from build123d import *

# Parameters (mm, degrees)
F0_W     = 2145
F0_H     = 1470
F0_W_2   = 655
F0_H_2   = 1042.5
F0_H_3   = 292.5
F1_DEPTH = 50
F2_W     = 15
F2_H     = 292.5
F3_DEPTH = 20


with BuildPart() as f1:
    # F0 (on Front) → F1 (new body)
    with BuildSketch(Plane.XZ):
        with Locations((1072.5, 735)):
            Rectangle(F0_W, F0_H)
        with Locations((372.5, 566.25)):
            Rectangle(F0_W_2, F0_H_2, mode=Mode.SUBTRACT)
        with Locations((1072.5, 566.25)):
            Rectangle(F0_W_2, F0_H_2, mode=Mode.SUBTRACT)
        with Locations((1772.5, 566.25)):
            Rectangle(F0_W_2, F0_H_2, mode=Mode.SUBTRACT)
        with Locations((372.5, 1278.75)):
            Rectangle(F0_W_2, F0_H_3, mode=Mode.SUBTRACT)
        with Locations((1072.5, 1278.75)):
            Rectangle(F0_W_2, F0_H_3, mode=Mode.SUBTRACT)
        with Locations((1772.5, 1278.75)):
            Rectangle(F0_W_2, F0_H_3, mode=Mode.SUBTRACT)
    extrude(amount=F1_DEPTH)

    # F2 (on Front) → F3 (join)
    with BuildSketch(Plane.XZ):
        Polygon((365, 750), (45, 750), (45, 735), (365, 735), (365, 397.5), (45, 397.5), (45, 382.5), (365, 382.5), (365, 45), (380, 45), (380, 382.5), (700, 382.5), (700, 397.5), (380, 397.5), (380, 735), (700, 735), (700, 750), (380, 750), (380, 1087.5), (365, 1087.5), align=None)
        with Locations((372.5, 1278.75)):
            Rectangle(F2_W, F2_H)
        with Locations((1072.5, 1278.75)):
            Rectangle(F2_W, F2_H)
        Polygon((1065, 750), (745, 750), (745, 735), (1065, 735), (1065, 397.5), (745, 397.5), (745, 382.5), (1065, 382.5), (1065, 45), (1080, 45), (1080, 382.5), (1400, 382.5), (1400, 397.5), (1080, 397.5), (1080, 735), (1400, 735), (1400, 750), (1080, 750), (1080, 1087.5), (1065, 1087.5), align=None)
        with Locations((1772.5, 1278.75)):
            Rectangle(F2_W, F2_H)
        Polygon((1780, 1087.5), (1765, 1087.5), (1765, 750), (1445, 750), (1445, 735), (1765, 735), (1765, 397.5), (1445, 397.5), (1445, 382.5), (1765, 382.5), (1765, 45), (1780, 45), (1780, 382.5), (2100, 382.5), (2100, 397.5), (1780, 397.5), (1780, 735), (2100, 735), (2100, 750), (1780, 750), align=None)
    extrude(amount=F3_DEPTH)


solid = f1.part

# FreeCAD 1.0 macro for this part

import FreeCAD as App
import Part
import Sketcher
Q = App.Units.Quantity

doc = App.newDocument("Part")
body = doc.addObject("PartDesign::Body", "Body")

sketch1 = body.newObject("Sketcher::SketchObject", "Sketch")
sketch1.AttachmentSupport = (doc.getObject("XZ_Plane"), [""])
sketch1.MapMode = "FlatFace"
sketch1.addGeometry([
    Part.LineSegment(App.Vector(0, 1470, 0), App.Vector(0, 0, 0)),
    Part.LineSegment(App.Vector(0, 0, 0), App.Vector(2145, 0, 0)),
    Part.LineSegment(App.Vector(2145, 0, 0), App.Vector(2145, 1470, 0)),
    Part.LineSegment(App.Vector(2145, 1470, 0), App.Vector(0, 1470, 0)),
    Part.LineSegment(App.Vector(700, 45, 0), App.Vector(45, 45, 0)),
    Part.LineSegment(App.Vector(45, 45, 0), App.Vector(45, 1087.5, 0)),
    Part.LineSegment(App.Vector(45, 1087.5, 0), App.Vector(700, 1087.5, 0)),
    Part.LineSegment(App.Vector(700, 1087.5, 0), App.Vector(700, 45, 0)),
    Part.LineSegment(App.Vector(1400, 45, 0), App.Vector(745, 45, 0)),
    Part.LineSegment(App.Vector(745, 45, 0), App.Vector(745, 1087.5, 0)),
    Part.LineSegment(App.Vector(745, 1087.5, 0), App.Vector(1400, 1087.5, 0)),
    Part.LineSegment(App.Vector(1400, 1087.5, 0), App.Vector(1400, 45, 0)),
    Part.LineSegment(App.Vector(2100, 45, 0), App.Vector(1445, 45, 0)),
    Part.LineSegment(App.Vector(1445, 45, 0), App.Vector(1445, 1087.5, 0)),
    Part.LineSegment(App.Vector(1445, 1087.5, 0), App.Vector(2100, 1087.5, 0)),
    Part.LineSegment(App.Vector(2100, 1087.5, 0), App.Vector(2100, 45, 0)),
    Part.LineSegment(App.Vector(700, 1132.5, 0), App.Vector(45, 1132.5, 0)),
    Part.LineSegment(App.Vector(45, 1132.5, 0), App.Vector(45, 1425, 0)),
    Part.LineSegment(App.Vector(45, 1425, 0), App.Vector(700, 1425, 0)),
    Part.LineSegment(App.Vector(700, 1425, 0), App.Vector(700, 1132.5, 0)),
    Part.LineSegment(App.Vector(1400, 1132.5, 0), App.Vector(745, 1132.5, 0)),
    Part.LineSegment(App.Vector(745, 1132.5, 0), App.Vector(745, 1425, 0)),
    Part.LineSegment(App.Vector(745, 1425, 0), App.Vector(1400, 1425, 0)),
    Part.LineSegment(App.Vector(1400, 1425, 0), App.Vector(1400, 1132.5, 0)),
    Part.LineSegment(App.Vector(2100, 1132.5, 0), App.Vector(1445, 1132.5, 0)),
    Part.LineSegment(App.Vector(1445, 1132.5, 0), App.Vector(1445, 1425, 0)),
    Part.LineSegment(App.Vector(1445, 1425, 0), App.Vector(2100, 1425, 0)),
    Part.LineSegment(App.Vector(2100, 1425, 0), App.Vector(2100, 1132.5, 0)),
], False)
sketch1.addConstraint([
    Sketcher.Constraint("Coincident", 0, 2, 1, 1),
    Sketcher.Constraint("Coincident", 1, 2, 2, 1),
    Sketcher.Constraint("Coincident", 2, 2, 3, 1),
    Sketcher.Constraint("Coincident", 3, 2, 0, 1),
    Sketcher.Constraint("Coincident", 4, 2, 5, 1),
    Sketcher.Constraint("Coincident", 5, 2, 6, 1),
    Sketcher.Constraint("Coincident", 6, 2, 7, 1),
    Sketcher.Constraint("Coincident", 7, 2, 4, 1),
    Sketcher.Constraint("Coincident", 8, 2, 9, 1),
    Sketcher.Constraint("Coincident", 9, 2, 10, 1),
    Sketcher.Constraint("Coincident", 10, 2, 11, 1),
    Sketcher.Constraint("Coincident", 11, 2, 8, 1),
    Sketcher.Constraint("Coincident", 12, 2, 13, 1),
    Sketcher.Constraint("Coincident", 13, 2, 14, 1),
    Sketcher.Constraint("Coincident", 14, 2, 15, 1),
    Sketcher.Constraint("Coincident", 15, 2, 12, 1),
    Sketcher.Constraint("Coincident", 16, 2, 17, 1),
    Sketcher.Constraint("Coincident", 17, 2, 18, 1),
    Sketcher.Constraint("Coincident", 18, 2, 19, 1),
    Sketcher.Constraint("Coincident", 19, 2, 16, 1),
    Sketcher.Constraint("Coincident", 20, 2, 21, 1),
    Sketcher.Constraint("Coincident", 21, 2, 22, 1),
    Sketcher.Constraint("Coincident", 22, 2, 23, 1),
    Sketcher.Constraint("Coincident", 23, 2, 20, 1),
    Sketcher.Constraint("Coincident", 24, 2, 25, 1),
    Sketcher.Constraint("Coincident", 25, 2, 26, 1),
    Sketcher.Constraint("Coincident", 26, 2, 27, 1),
    Sketcher.Constraint("Coincident", 27, 2, 24, 1),
    Sketcher.Constraint("Vertical", 0),
    Sketcher.Constraint("Horizontal", 1),
    Sketcher.Constraint("Vertical", 2),
    Sketcher.Constraint("Horizontal", 3),
    Sketcher.Constraint("Horizontal", 4),
    Sketcher.Constraint("Vertical", 5),
    Sketcher.Constraint("Horizontal", 6),
    Sketcher.Constraint("Vertical", 7),
    Sketcher.Constraint("Horizontal", 8),
    Sketcher.Constraint("Vertical", 9),
    Sketcher.Constraint("Horizontal", 10),
    Sketcher.Constraint("Vertical", 11),
    Sketcher.Constraint("Horizontal", 12),
    Sketcher.Constraint("Vertical", 13),
    Sketcher.Constraint("Horizontal", 14),
    Sketcher.Constraint("Vertical", 15),
    Sketcher.Constraint("Horizontal", 16),
    Sketcher.Constraint("Vertical", 17),
    Sketcher.Constraint("Horizontal", 18),
    Sketcher.Constraint("Vertical", 19),
    Sketcher.Constraint("Horizontal", 20),
    Sketcher.Constraint("Vertical", 21),
    Sketcher.Constraint("Horizontal", 22),
    Sketcher.Constraint("Vertical", 23),
    Sketcher.Constraint("Horizontal", 24),
    Sketcher.Constraint("Vertical", 25),
    Sketcher.Constraint("Horizontal", 26),
    Sketcher.Constraint("Vertical", 27),
    Sketcher.Constraint("Coincident", 0, 2, -1, 1),
    Sketcher.Constraint("Horizontal", 7, 2, 8, 2),
    Sketcher.Constraint("Horizontal", 6, 2, 9, 2),
    Sketcher.Constraint("Horizontal", 11, 2, 12, 2),
    Sketcher.Constraint("Horizontal", 10, 2, 13, 2),
    Sketcher.Constraint("Horizontal", 19, 2, 20, 2),
    Sketcher.Constraint("Horizontal", 18, 2, 21, 2),
    Sketcher.Constraint("Horizontal", 23, 2, 24, 2),
    Sketcher.Constraint("Horizontal", 22, 2, 25, 2),
    Sketcher.Constraint("Vertical", 5, 2, 16, 2),
    Sketcher.Constraint("Vertical", 7, 2, 18, 2),
    Sketcher.Constraint("Vertical", 9, 2, 20, 2),
    Sketcher.Constraint("Vertical", 11, 2, 22, 2),
    Sketcher.Constraint("Vertical", 13, 2, 24, 2),
    Sketcher.Constraint("Vertical", 15, 2, 26, 2),
    Sketcher.Constraint("Equal", 6, 8),
    Sketcher.Constraint("Equal", 10, 12),
    Sketcher.Constraint("DistanceX", 1, 1, 1, 2, Q("2145 mm")),
    Sketcher.Constraint("DistanceX", 4, 2, 4, 1, Q("655 mm")),
    Sketcher.Constraint("DistanceY", 0, 2, 0, 1, Q("1470 mm")),
    Sketcher.Constraint("DistanceY", 5, 1, 5, 2, Q("1042.5 mm")),
    Sketcher.Constraint("DistanceY", 17, 1, 17, 2, Q("292.5 mm")),
    Sketcher.Constraint("DistanceX", -1, 1, 4, 2, Q("45 mm")),
    Sketcher.Constraint("DistanceY", -1, 1, 4, 2, Q("45 mm")),
    Sketcher.Constraint("DistanceX", -1, 1, 8, 2, Q("745 mm")),
    Sketcher.Constraint("DistanceX", -1, 1, 12, 2, Q("1445 mm")),
    Sketcher.Constraint("DistanceY", -1, 1, 17, 2, Q("1425 mm")),
])
pad1 = body.newObject("PartDesign::Pad", "Pad")
pad1.Profile = sketch1
pad1.Length = 50

sketch2 = body.newObject("Sketcher::SketchObject", "Sketch001")
sketch2.AttachmentSupport = (doc.getObject("XZ_Plane"), [""])
sketch2.MapMode = "FlatFace"
sketch2.addGeometry([
    Part.LineSegment(App.Vector(365, 750, 0), App.Vector(45, 750, 0)),
    Part.LineSegment(App.Vector(45, 750, 0), App.Vector(45, 735, 0)),
    Part.LineSegment(App.Vector(45, 735, 0), App.Vector(365, 735, 0)),
    Part.LineSegment(App.Vector(365, 735, 0), App.Vector(365, 397.5, 0)),
    Part.LineSegment(App.Vector(365, 397.5, 0), App.Vector(45, 397.5, 0)),
    Part.LineSegment(App.Vector(45, 397.5, 0), App.Vector(45, 382.5, 0)),
    Part.LineSegment(App.Vector(45, 382.5, 0), App.Vector(365, 382.5, 0)),
    Part.LineSegment(App.Vector(365, 382.5, 0), App.Vector(365, 45, 0)),
    Part.LineSegment(App.Vector(365, 45, 0), App.Vector(380, 45, 0)),
    Part.LineSegment(App.Vector(380, 45, 0), App.Vector(380, 382.5, 0)),
    Part.LineSegment(App.Vector(380, 382.5, 0), App.Vector(700, 382.5, 0)),
    Part.LineSegment(App.Vector(700, 382.5, 0), App.Vector(700, 397.5, 0)),
    Part.LineSegment(App.Vector(700, 397.5, 0), App.Vector(380, 397.5, 0)),
    Part.LineSegment(App.Vector(380, 397.5, 0), App.Vector(380, 735, 0)),
    Part.LineSegment(App.Vector(380, 735, 0), App.Vector(700, 735, 0)),
    Part.LineSegment(App.Vector(700, 735, 0), App.Vector(700, 750, 0)),
    Part.LineSegment(App.Vector(700, 750, 0), App.Vector(380, 750, 0)),
    Part.LineSegment(App.Vector(380, 750, 0), App.Vector(380, 1087.5, 0)),
    Part.LineSegment(App.Vector(380, 1087.5, 0), App.Vector(365, 1087.5, 0)),
    Part.LineSegment(App.Vector(365, 1087.5, 0), App.Vector(365, 750, 0)),
    Part.LineSegment(App.Vector(365, 1425, 0), App.Vector(365, 1132.5, 0)),
    Part.LineSegment(App.Vector(365, 1132.5, 0), App.Vector(380, 1132.5, 0)),
    Part.LineSegment(App.Vector(380, 1132.5, 0), App.Vector(380, 1425, 0)),
    Part.LineSegment(App.Vector(380, 1425, 0), App.Vector(365, 1425, 0)),
    Part.LineSegment(App.Vector(1065, 1425, 0), App.Vector(1065, 1132.5, 0)),
    Part.LineSegment(App.Vector(1065, 1132.5, 0), App.Vector(1080, 1132.5, 0)),
    Part.LineSegment(App.Vector(1080, 1132.5, 0), App.Vector(1080, 1425, 0)),
    Part.LineSegment(App.Vector(1080, 1425, 0), App.Vector(1065, 1425, 0)),
    Part.LineSegment(App.Vector(1065, 750, 0), App.Vector(745, 750, 0)),
    Part.LineSegment(App.Vector(745, 750, 0), App.Vector(745, 735, 0)),
    Part.LineSegment(App.Vector(745, 735, 0), App.Vector(1065, 735, 0)),
    Part.LineSegment(App.Vector(1065, 735, 0), App.Vector(1065, 397.5, 0)),
    Part.LineSegment(App.Vector(1065, 397.5, 0), App.Vector(745, 397.5, 0)),
    Part.LineSegment(App.Vector(745, 397.5, 0), App.Vector(745, 382.5, 0)),
    Part.LineSegment(App.Vector(745, 382.5, 0), App.Vector(1065, 382.5, 0)),
    Part.LineSegment(App.Vector(1065, 382.5, 0), App.Vector(1065, 45, 0)),
    Part.LineSegment(App.Vector(1065, 45, 0), App.Vector(1080, 45, 0)),
    Part.LineSegment(App.Vector(1080, 45, 0), App.Vector(1080, 382.5, 0)),
    Part.LineSegment(App.Vector(1080, 382.5, 0), App.Vector(1400, 382.5, 0)),
    Part.LineSegment(App.Vector(1400, 382.5, 0), App.Vector(1400, 397.5, 0)),
    Part.LineSegment(App.Vector(1400, 397.5, 0), App.Vector(1080, 397.5, 0)),
    Part.LineSegment(App.Vector(1080, 397.5, 0), App.Vector(1080, 735, 0)),
    Part.LineSegment(App.Vector(1080, 735, 0), App.Vector(1400, 735, 0)),
    Part.LineSegment(App.Vector(1400, 735, 0), App.Vector(1400, 750, 0)),
    Part.LineSegment(App.Vector(1400, 750, 0), App.Vector(1080, 750, 0)),
    Part.LineSegment(App.Vector(1080, 750, 0), App.Vector(1080, 1087.5, 0)),
    Part.LineSegment(App.Vector(1080, 1087.5, 0), App.Vector(1065, 1087.5, 0)),
    Part.LineSegment(App.Vector(1065, 1087.5, 0), App.Vector(1065, 750, 0)),
    Part.LineSegment(App.Vector(1765, 1425, 0), App.Vector(1765, 1132.5, 0)),
    Part.LineSegment(App.Vector(1765, 1132.5, 0), App.Vector(1780, 1132.5, 0)),
    Part.LineSegment(App.Vector(1780, 1132.5, 0), App.Vector(1780, 1425, 0)),
    Part.LineSegment(App.Vector(1780, 1425, 0), App.Vector(1765, 1425, 0)),
    Part.LineSegment(App.Vector(1780, 1087.5, 0), App.Vector(1765, 1087.5, 0)),
    Part.LineSegment(App.Vector(1765, 1087.5, 0), App.Vector(1765, 750, 0)),
    Part.LineSegment(App.Vector(1765, 750, 0), App.Vector(1445, 750, 0)),
    Part.LineSegment(App.Vector(1445, 750, 0), App.Vector(1445, 735, 0)),
    Part.LineSegment(App.Vector(1445, 735, 0), App.Vector(1765, 735, 0)),
    Part.LineSegment(App.Vector(1765, 735, 0), App.Vector(1765, 397.5, 0)),
    Part.LineSegment(App.Vector(1765, 397.5, 0), App.Vector(1445, 397.5, 0)),
    Part.LineSegment(App.Vector(1445, 397.5, 0), App.Vector(1445, 382.5, 0)),
    Part.LineSegment(App.Vector(1445, 382.5, 0), App.Vector(1765, 382.5, 0)),
    Part.LineSegment(App.Vector(1765, 382.5, 0), App.Vector(1765, 45, 0)),
    Part.LineSegment(App.Vector(1765, 45, 0), App.Vector(1780, 45, 0)),
    Part.LineSegment(App.Vector(1780, 45, 0), App.Vector(1780, 382.5, 0)),
    Part.LineSegment(App.Vector(1780, 382.5, 0), App.Vector(2100, 382.5, 0)),
    Part.LineSegment(App.Vector(2100, 382.5, 0), App.Vector(2100, 397.5, 0)),
    Part.LineSegment(App.Vector(2100, 397.5, 0), App.Vector(1780, 397.5, 0)),
    Part.LineSegment(App.Vector(1780, 397.5, 0), App.Vector(1780, 735, 0)),
    Part.LineSegment(App.Vector(1780, 735, 0), App.Vector(2100, 735, 0)),
    Part.LineSegment(App.Vector(2100, 735, 0), App.Vector(2100, 750, 0)),
    Part.LineSegment(App.Vector(2100, 750, 0), App.Vector(1780, 750, 0)),
    Part.LineSegment(App.Vector(1780, 750, 0), App.Vector(1780, 1087.5, 0)),
], False)
sketch2.addConstraint([
    Sketcher.Constraint("Coincident", 0, 2, 1, 1),
    Sketcher.Constraint("Coincident", 1, 2, 2, 1),
    Sketcher.Constraint("Coincident", 2, 2, 3, 1),
    Sketcher.Constraint("Coincident", 3, 2, 4, 1),
    Sketcher.Constraint("Coincident", 4, 2, 5, 1),
    Sketcher.Constraint("Coincident", 5, 2, 6, 1),
    Sketcher.Constraint("Coincident", 6, 2, 7, 1),
    Sketcher.Constraint("Coincident", 7, 2, 8, 1),
    Sketcher.Constraint("Coincident", 8, 2, 9, 1),
    Sketcher.Constraint("Coincident", 9, 2, 10, 1),
    Sketcher.Constraint("Coincident", 10, 2, 11, 1),
    Sketcher.Constraint("Coincident", 11, 2, 12, 1),
    Sketcher.Constraint("Coincident", 12, 2, 13, 1),
    Sketcher.Constraint("Coincident", 13, 2, 14, 1),
    Sketcher.Constraint("Coincident", 14, 2, 15, 1),
    Sketcher.Constraint("Coincident", 15, 2, 16, 1),
    Sketcher.Constraint("Coincident", 16, 2, 17, 1),
    Sketcher.Constraint("Coincident", 17, 2, 18, 1),
    Sketcher.Constraint("Coincident", 18, 2, 19, 1),
    Sketcher.Constraint("Coincident", 19, 2, 0, 1),
    Sketcher.Constraint("Coincident", 20, 2, 21, 1),
    Sketcher.Constraint("Coincident", 21, 2, 22, 1),
    Sketcher.Constraint("Coincident", 22, 2, 23, 1),
    Sketcher.Constraint("Coincident", 23, 2, 20, 1),
    Sketcher.Constraint("Coincident", 24, 2, 25, 1),
    Sketcher.Constraint("Coincident", 25, 2, 26, 1),
    Sketcher.Constraint("Coincident", 26, 2, 27, 1),
    Sketcher.Constraint("Coincident", 27, 2, 24, 1),
    Sketcher.Constraint("Coincident", 28, 2, 29, 1),
    Sketcher.Constraint("Coincident", 29, 2, 30, 1),
    Sketcher.Constraint("Coincident", 30, 2, 31, 1),
    Sketcher.Constraint("Coincident", 31, 2, 32, 1),
    Sketcher.Constraint("Coincident", 32, 2, 33, 1),
    Sketcher.Constraint("Coincident", 33, 2, 34, 1),
    Sketcher.Constraint("Coincident", 34, 2, 35, 1),
    Sketcher.Constraint("Coincident", 35, 2, 36, 1),
    Sketcher.Constraint("Coincident", 36, 2, 37, 1),
    Sketcher.Constraint("Coincident", 37, 2, 38, 1),
    Sketcher.Constraint("Coincident", 38, 2, 39, 1),
    Sketcher.Constraint("Coincident", 39, 2, 40, 1),
    Sketcher.Constraint("Coincident", 40, 2, 41, 1),
    Sketcher.Constraint("Coincident", 41, 2, 42, 1),
    Sketcher.Constraint("Coincident", 42, 2, 43, 1),
    Sketcher.Constraint("Coincident", 43, 2, 44, 1),
    Sketcher.Constraint("Coincident", 44, 2, 45, 1),
    Sketcher.Constraint("Coincident", 45, 2, 46, 1),
    Sketcher.Constraint("Coincident", 46, 2, 47, 1),
    Sketcher.Constraint("Coincident", 47, 2, 28, 1),
    Sketcher.Constraint("Coincident", 48, 2, 49, 1),
    Sketcher.Constraint("Coincident", 49, 2, 50, 1),
    Sketcher.Constraint("Coincident", 50, 2, 51, 1),
    Sketcher.Constraint("Coincident", 51, 2, 48, 1),
    Sketcher.Constraint("Coincident", 52, 2, 53, 1),
    Sketcher.Constraint("Coincident", 53, 2, 54, 1),
    Sketcher.Constraint("Coincident", 54, 2, 55, 1),
    Sketcher.Constraint("Coincident", 55, 2, 56, 1),
    Sketcher.Constraint("Coincident", 56, 2, 57, 1),
    Sketcher.Constraint("Coincident", 57, 2, 58, 1),
    Sketcher.Constraint("Coincident", 58, 2, 59, 1),
    Sketcher.Constraint("Coincident", 59, 2, 60, 1),
    Sketcher.Constraint("Coincident", 60, 2, 61, 1),
    Sketcher.Constraint("Coincident", 61, 2, 62, 1),
    Sketcher.Constraint("Coincident", 62, 2, 63, 1),
    Sketcher.Constraint("Coincident", 63, 2, 64, 1),
    Sketcher.Constraint("Coincident", 64, 2, 65, 1),
    Sketcher.Constraint("Coincident", 65, 2, 66, 1),
    Sketcher.Constraint("Coincident", 66, 2, 67, 1),
    Sketcher.Constraint("Coincident", 67, 2, 68, 1),
    Sketcher.Constraint("Coincident", 68, 2, 69, 1),
    Sketcher.Constraint("Coincident", 69, 2, 70, 1),
    Sketcher.Constraint("Coincident", 70, 2, 71, 1),
    Sketcher.Constraint("Coincident", 71, 2, 52, 1),
    Sketcher.Constraint("Horizontal", 0),
    Sketcher.Constraint("Vertical", 1),
    Sketcher.Constraint("Horizontal", 2),
    Sketcher.Constraint("Vertical", 3),
    Sketcher.Constraint("Horizontal", 4),
    Sketcher.Constraint("Vertical", 5),
    Sketcher.Constraint("Horizontal", 6),
    Sketcher.Constraint("Vertical", 7),
    Sketcher.Constraint("Horizontal", 8),
    Sketcher.Constraint("Vertical", 9),
    Sketcher.Constraint("Horizontal", 10),
    Sketcher.Constraint("Vertical", 11),
    Sketcher.Constraint("Horizontal", 12),
    Sketcher.Constraint("Vertical", 13),
    Sketcher.Constraint("Horizontal", 14),
    Sketcher.Constraint("Vertical", 15),
    Sketcher.Constraint("Horizontal", 16),
    Sketcher.Constraint("Vertical", 17),
    Sketcher.Constraint("Horizontal", 18),
    Sketcher.Constraint("Vertical", 19),
    Sketcher.Constraint("Vertical", 20),
    Sketcher.Constraint("Horizontal", 21),
    Sketcher.Constraint("Vertical", 22),
    Sketcher.Constraint("Horizontal", 23),
    Sketcher.Constraint("Vertical", 24),
    Sketcher.Constraint("Horizontal", 25),
    Sketcher.Constraint("Vertical", 26),
    Sketcher.Constraint("Horizontal", 27),
    Sketcher.Constraint("Horizontal", 28),
    Sketcher.Constraint("Vertical", 29),
    Sketcher.Constraint("Horizontal", 30),
    Sketcher.Constraint("Vertical", 31),
    Sketcher.Constraint("Horizontal", 32),
    Sketcher.Constraint("Vertical", 33),
    Sketcher.Constraint("Horizontal", 34),
    Sketcher.Constraint("Vertical", 35),
    Sketcher.Constraint("Horizontal", 36),
    Sketcher.Constraint("Vertical", 37),
    Sketcher.Constraint("Horizontal", 38),
    Sketcher.Constraint("Vertical", 39),
    Sketcher.Constraint("Horizontal", 40),
    Sketcher.Constraint("Vertical", 41),
    Sketcher.Constraint("Horizontal", 42),
    Sketcher.Constraint("Vertical", 43),
    Sketcher.Constraint("Horizontal", 44),
    Sketcher.Constraint("Vertical", 45),
    Sketcher.Constraint("Horizontal", 46),
    Sketcher.Constraint("Vertical", 47),
    Sketcher.Constraint("Vertical", 48),
    Sketcher.Constraint("Horizontal", 49),
    Sketcher.Constraint("Vertical", 50),
    Sketcher.Constraint("Horizontal", 51),
    Sketcher.Constraint("Horizontal", 52),
    Sketcher.Constraint("Vertical", 53),
    Sketcher.Constraint("Horizontal", 54),
    Sketcher.Constraint("Vertical", 55),
    Sketcher.Constraint("Horizontal", 56),
    Sketcher.Constraint("Vertical", 57),
    Sketcher.Constraint("Horizontal", 58),
    Sketcher.Constraint("Vertical", 59),
    Sketcher.Constraint("Horizontal", 60),
    Sketcher.Constraint("Vertical", 61),
    Sketcher.Constraint("Horizontal", 62),
    Sketcher.Constraint("Vertical", 63),
    Sketcher.Constraint("Horizontal", 64),
    Sketcher.Constraint("Vertical", 65),
    Sketcher.Constraint("Horizontal", 66),
    Sketcher.Constraint("Vertical", 67),
    Sketcher.Constraint("Horizontal", 68),
    Sketcher.Constraint("Vertical", 69),
    Sketcher.Constraint("Horizontal", 70),
    Sketcher.Constraint("Vertical", 71),
    Sketcher.Constraint("Horizontal", 6, 2, 9, 2),
    Sketcher.Constraint("Horizontal", 4, 2, 11, 2),
    Sketcher.Constraint("Horizontal", 2, 2, 13, 2),
    Sketcher.Constraint("Horizontal", 0, 2, 15, 2),
    Sketcher.Constraint("Horizontal", 21, 2, 24, 2),
    Sketcher.Constraint("Horizontal", 23, 2, 26, 2),
    Sketcher.Constraint("Horizontal", 19, 2, 28, 2),
    Sketcher.Constraint("Horizontal", 14, 2, 29, 2),
    Sketcher.Constraint("Horizontal", 12, 2, 31, 2),
    Sketcher.Constraint("Horizontal", 10, 2, 33, 2),
    Sketcher.Constraint("Horizontal", 8, 2, 35, 2),
    Sketcher.Constraint("Horizontal", 34, 2, 37, 2),
    Sketcher.Constraint("Horizontal", 32, 2, 39, 2),
    Sketcher.Constraint("Horizontal", 30, 2, 41, 2),
    Sketcher.Constraint("Horizontal", 28, 2, 43, 2),
    Sketcher.Constraint("Horizontal", 18, 2, 45, 2),
    Sketcher.Constraint("Horizontal", 25, 2, 48, 2),
    Sketcher.Constraint("Horizontal", 27, 2, 50, 2),
    Sketcher.Constraint("Horizontal", 46, 2, 52, 2),
    Sketcher.Constraint("Horizontal", 47, 2, 53, 2),
    Sketcher.Constraint("Horizontal", 42, 2, 55, 2),
    Sketcher.Constraint("Horizontal", 40, 2, 57, 2),
    Sketcher.Constraint("Horizontal", 38, 2, 59, 2),
    Sketcher.Constraint("Horizontal", 36, 2, 61, 2),
    Sketcher.Constraint("Horizontal", 60, 2, 63, 2),
    Sketcher.Constraint("Horizontal", 58, 2, 65, 2),
    Sketcher.Constraint("Horizontal", 56, 2, 67, 2),
    Sketcher.Constraint("Horizontal", 54, 2, 69, 2),
    Sketcher.Constraint("Vertical", 1, 2, 4, 2),
    Sketcher.Constraint("Vertical", 3, 2, 6, 2),
    Sketcher.Constraint("Vertical", 9, 2, 12, 2),
    Sketcher.Constraint("Vertical", 11, 2, 14, 2),
    Sketcher.Constraint("Vertical", 13, 2, 16, 2),
    Sketcher.Constraint("Vertical", 7, 2, 18, 2),
    Sketcher.Constraint("Vertical", 19, 2, 20, 2),
    Sketcher.Constraint("Vertical", 17, 2, 21, 2),
    Sketcher.Constraint("Vertical", 27, 2, 30, 2),
    Sketcher.Constraint("Vertical", 29, 2, 32, 2),
    Sketcher.Constraint("Vertical", 31, 2, 34, 2),
    Sketcher.Constraint("Vertical", 26, 2, 36, 2),
    Sketcher.Constraint("Vertical", 37, 2, 40, 2),
    Sketcher.Constraint("Vertical", 39, 2, 42, 2),
    Sketcher.Constraint("Vertical", 41, 2, 44, 2),
    Sketcher.Constraint("Vertical", 35, 2, 46, 2),
    Sketcher.Constraint("Vertical", 51, 2, 52, 2),
    Sketcher.Constraint("Vertical", 53, 2, 56, 2),
    Sketcher.Constraint("Vertical", 55, 2, 58, 2),
    Sketcher.Constraint("Vertical", 57, 2, 60, 2),
    Sketcher.Constraint("Vertical", 50, 2, 62, 2),
    Sketcher.Constraint("Vertical", 63, 2, 66, 2),
    Sketcher.Constraint("Vertical", 65, 2, 68, 2),
    Sketcher.Constraint("Vertical", 67, 2, 70, 2),
    Sketcher.Constraint("Equal", 6, 10),
    Sketcher.Constraint("Equal", 23, 25),
    Sketcher.Constraint("Equal", 16, 28),
    Sketcher.Constraint("Equal", 34, 38),
    Sketcher.Constraint("Equal", 46, 49),
    Sketcher.Constraint("Equal", 44, 54),
    Sketcher.Constraint("Equal", 60, 64),
    Sketcher.Constraint("Equal", 62, 1),
    Sketcher.Constraint("Equal", 1, 5),
    Sketcher.Constraint("Equal", 3, 7),
    Sketcher.Constraint("Equal", 13, 17),
    Sketcher.Constraint("DistanceX", 0, 2, 0, 1, Q("320 mm")),
    Sketcher.Constraint("DistanceX", 8, 1, 8, 2, Q("15 mm")),
    Sketcher.Constraint("DistanceY", 3, 2, 3, 1, Q("337.5 mm")),
    Sketcher.Constraint("DistanceY", 20, 2, 20, 1, Q("292.5 mm")),
    Sketcher.Constraint("DistanceX", -1, 1, 0, 2, Q("45 mm")),
    Sketcher.Constraint("DistanceY", -1, 1, 0, 2, Q("750 mm")),
    Sketcher.Constraint("DistanceY", -1, 1, 22, 2, Q("1425 mm")),
    Sketcher.Constraint("DistanceX", -1, 1, 24, 2, Q("1065 mm")),
    Sketcher.Constraint("DistanceX", -1, 1, 48, 2, Q("1765 mm")),
])
pad2 = body.newObject("PartDesign::Pad", "Pad001")
pad2.Profile = sketch2
pad2.Length = 20

doc.recompute()
